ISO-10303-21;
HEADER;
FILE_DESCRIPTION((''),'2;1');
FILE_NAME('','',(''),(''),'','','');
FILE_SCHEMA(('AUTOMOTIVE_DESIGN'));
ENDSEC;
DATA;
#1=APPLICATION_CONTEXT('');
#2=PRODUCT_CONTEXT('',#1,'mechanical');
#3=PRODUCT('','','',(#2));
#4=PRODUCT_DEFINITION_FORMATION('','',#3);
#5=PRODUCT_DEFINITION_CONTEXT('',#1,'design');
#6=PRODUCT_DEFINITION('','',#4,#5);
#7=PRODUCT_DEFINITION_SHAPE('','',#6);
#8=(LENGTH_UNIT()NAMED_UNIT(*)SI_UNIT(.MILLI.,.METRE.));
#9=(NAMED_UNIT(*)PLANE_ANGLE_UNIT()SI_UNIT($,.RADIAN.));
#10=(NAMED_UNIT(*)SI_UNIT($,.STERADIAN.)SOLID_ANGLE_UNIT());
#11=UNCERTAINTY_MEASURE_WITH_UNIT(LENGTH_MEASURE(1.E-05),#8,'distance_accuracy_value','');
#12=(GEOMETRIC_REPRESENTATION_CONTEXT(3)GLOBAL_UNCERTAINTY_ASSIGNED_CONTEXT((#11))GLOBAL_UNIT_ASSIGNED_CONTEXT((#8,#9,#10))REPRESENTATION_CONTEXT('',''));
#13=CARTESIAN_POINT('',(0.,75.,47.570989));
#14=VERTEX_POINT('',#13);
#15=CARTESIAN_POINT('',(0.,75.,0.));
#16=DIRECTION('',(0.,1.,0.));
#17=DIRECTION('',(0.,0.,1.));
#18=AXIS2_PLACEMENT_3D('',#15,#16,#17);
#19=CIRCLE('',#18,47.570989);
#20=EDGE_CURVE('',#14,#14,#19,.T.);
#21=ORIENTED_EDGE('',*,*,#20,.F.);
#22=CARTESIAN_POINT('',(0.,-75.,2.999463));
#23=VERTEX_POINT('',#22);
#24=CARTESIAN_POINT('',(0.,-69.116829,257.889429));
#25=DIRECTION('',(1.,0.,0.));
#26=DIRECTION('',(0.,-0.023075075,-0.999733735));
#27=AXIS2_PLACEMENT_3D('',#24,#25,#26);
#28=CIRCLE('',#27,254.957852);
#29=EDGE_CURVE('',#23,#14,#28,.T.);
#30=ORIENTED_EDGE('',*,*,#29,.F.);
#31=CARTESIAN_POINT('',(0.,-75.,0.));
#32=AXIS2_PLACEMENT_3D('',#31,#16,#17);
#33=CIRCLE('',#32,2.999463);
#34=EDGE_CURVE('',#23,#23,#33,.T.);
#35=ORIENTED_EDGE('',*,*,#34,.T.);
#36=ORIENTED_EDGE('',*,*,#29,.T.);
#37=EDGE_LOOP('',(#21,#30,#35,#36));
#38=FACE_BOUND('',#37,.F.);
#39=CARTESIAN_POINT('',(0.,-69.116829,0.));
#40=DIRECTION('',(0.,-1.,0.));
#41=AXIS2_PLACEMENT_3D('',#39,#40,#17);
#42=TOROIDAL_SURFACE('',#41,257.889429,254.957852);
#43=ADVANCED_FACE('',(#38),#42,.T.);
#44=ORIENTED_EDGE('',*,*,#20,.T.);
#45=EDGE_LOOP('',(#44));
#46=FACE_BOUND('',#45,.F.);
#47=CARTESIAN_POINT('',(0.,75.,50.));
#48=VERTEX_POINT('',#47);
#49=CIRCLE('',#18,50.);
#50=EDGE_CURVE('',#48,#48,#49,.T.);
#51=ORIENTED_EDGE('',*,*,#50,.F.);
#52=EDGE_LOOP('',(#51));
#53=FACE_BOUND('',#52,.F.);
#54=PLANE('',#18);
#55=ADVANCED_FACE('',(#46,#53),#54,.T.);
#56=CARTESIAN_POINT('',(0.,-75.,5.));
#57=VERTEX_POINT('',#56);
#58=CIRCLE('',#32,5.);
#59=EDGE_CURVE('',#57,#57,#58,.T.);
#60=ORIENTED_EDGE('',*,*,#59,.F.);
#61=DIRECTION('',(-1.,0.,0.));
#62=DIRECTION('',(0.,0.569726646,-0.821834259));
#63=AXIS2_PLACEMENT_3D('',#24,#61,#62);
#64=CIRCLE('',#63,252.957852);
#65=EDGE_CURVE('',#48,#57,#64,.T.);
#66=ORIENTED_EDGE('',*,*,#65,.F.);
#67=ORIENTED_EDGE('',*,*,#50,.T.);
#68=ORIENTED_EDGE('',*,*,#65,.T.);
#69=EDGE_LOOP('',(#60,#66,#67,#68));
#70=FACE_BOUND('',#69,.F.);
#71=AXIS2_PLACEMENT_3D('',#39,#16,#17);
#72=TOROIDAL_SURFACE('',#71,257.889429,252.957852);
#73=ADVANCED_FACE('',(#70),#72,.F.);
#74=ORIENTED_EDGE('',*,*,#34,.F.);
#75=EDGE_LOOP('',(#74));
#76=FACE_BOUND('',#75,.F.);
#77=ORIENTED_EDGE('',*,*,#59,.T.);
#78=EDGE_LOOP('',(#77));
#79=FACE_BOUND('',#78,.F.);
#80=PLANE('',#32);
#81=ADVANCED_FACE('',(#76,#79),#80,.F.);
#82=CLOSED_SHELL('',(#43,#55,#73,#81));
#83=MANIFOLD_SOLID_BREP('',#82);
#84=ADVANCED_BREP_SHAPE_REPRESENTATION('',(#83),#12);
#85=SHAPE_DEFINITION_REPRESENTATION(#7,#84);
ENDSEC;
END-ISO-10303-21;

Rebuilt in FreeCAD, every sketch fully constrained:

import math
import FreeCAD as App
import Part
import Sketcher

V = App.Vector
Q = App.Units.Quantity

doc = App.newDocument("Part")
body = doc.addObject("PartDesign::Body", "Body")

sketch1 = body.newObject("Sketcher::SketchObject", "Sketch")
sketch1.AttachmentSupport = (doc.getObject("YZ_Plane"), [""])
sketch1.MapMode = "FlatFace"
sketch1.addGeometry([
    Part.LineSegment(V(-75, 5, 0), V(-75, 3, 0)),
    Part.ArcOfCircle(Part.Circle(V(-69.1, 257.9, 0), V(0, 0, 1), 255), math.radians(-91), math.radians(-56)),
    Part.LineSegment(V(75, 47.6, 0), V(75, 50, 0)),
    Part.ArcOfCircle(Part.Circle(V(-69.1, 257.9, 0), V(0, 0, 1), 253), math.radians(-91), math.radians(-55)),
], False)
sketch1.addConstraint([
    Sketcher.Constraint("Coincident", 0, 2, 1, 1),
    Sketcher.Constraint("Coincident", 1, 2, 2, 1),
    Sketcher.Constraint("Coincident", 2, 2, 3, 2),
    Sketcher.Constraint("Coincident", 3, 1, 0, 1),
    Sketcher.Constraint("Vertical", 0),
    Sketcher.Constraint("Vertical", 2),
    Sketcher.Constraint("Coincident", 3, 3, 1, 3),
    Sketcher.Constraint("DistanceX", 0, 2, -1, 1, Q("75 mm")),
    Sketcher.Constraint("DistanceX", -1, 1, 1, 2, Q("75 mm")),
    Sketcher.Constraint("DistanceY", -1, 1, 2, 2, Q("50 mm")),
    Sketcher.Constraint("DistanceY", -1, 1, 3, 1, Q("5 mm")),
    Sketcher.Constraint("Radius", 1, Q("254.957852 mm")),
    Sketcher.Constraint("Radius", 3, Q("252.957852 mm")),
])
revolution = body.newObject("PartDesign::Revolution", "Revolution")
revolution.Profile = sketch1
revolution.ReferenceAxis = (sketch1, ["H_Axis"])
revolution.Angle = 360

doc.recompute()
